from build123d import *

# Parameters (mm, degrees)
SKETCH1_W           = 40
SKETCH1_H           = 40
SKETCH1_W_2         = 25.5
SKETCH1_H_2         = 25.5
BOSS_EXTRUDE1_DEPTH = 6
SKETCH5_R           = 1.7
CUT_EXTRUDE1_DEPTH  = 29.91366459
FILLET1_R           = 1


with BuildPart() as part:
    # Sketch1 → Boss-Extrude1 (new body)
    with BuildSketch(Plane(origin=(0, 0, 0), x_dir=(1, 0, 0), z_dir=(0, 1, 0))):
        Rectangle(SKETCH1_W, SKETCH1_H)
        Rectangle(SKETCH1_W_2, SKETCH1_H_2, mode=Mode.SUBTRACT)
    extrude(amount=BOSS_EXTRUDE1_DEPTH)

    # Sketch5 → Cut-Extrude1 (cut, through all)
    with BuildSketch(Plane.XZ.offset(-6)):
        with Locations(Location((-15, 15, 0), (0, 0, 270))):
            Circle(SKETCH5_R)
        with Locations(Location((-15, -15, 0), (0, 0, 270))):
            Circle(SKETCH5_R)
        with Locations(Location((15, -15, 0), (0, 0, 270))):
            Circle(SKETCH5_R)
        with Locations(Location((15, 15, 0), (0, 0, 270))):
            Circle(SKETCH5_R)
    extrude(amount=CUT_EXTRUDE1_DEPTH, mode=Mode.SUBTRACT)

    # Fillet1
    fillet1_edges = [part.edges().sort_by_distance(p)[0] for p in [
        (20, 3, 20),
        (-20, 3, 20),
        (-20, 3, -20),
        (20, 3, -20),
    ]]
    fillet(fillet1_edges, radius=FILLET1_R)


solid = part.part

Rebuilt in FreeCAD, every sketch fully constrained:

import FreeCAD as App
import Part
import Sketcher

V = App.Vector
Q = App.Units.Quantity


def edges_at(feature, points):
    """Names of the edges that pass closest to the given points."""
    edges = feature.Shape.Edges
    near = lambda p: min(range(len(edges)), key=lambda i: edges[i].distToShape(Part.Vertex(*p))[0])
    return sorted({f"Edge{near(p) + 1}" for p in points})


def add_polygon(sketch, points):
    """Adds a closed chain of lines whose ends are joined by coincident constraints."""
    first, n = sketch.GeometryCount, len(points)
    for a, b in zip(points, points[1:] + points[:1]):
        sketch.addGeometry(Part.LineSegment(App.Vector(*a, 0), App.Vector(*b, 0)), False)
    for i in range(n):
        sketch.addConstraint(Sketcher.Constraint("Coincident", first + i, 2, first + (i + 1) % n, 1))

doc = App.newDocument("Part")
body = doc.addObject("PartDesign::Body", "Body")

# Sketch on XZ plane
sketch1 = body.newObject("Sketcher::SketchObject", "Sketch")
sketch1.AttachmentSupport = (doc.getObject("XZ_Plane"), [""])
sketch1.MapMode = "FlatFace"
add_polygon(sketch1, [(-20, -20), (-20, 20), (20, 20), (20, -20)])  # lines 0-3
add_polygon(sketch1, [(13, 13), (-13, 13), (-13, -13), (13, -13)])  # lines 4-7
sketch1.addConstraint(Sketcher.Constraint("Vertical", 0))
sketch1.addConstraint(Sketcher.Constraint("Horizontal", 1))
sketch1.addConstraint(Sketcher.Constraint("Vertical", 2))
sketch1.addConstraint(Sketcher.Constraint("Horizontal", 3))
sketch1.addConstraint(Sketcher.Constraint("Horizontal", 4))
sketch1.addConstraint(Sketcher.Constraint("Vertical", 5))
sketch1.addConstraint(Sketcher.Constraint("Horizontal", 6))
sketch1.addConstraint(Sketcher.Constraint("Vertical", 7))
sketch1.addConstraint(Sketcher.Constraint("Symmetric", 0, 2, 2, 2, -1, 1))
sketch1.addConstraint(Sketcher.Constraint("Symmetric", 4, 2, 6, 2, -1, 1))
sketch1.addConstraint(Sketcher.Constraint("Equal", 3, 0))
sketch1.addConstraint(Sketcher.Constraint("Equal", 6, 5))
sketch1.addConstraint(Sketcher.Constraint("DistanceX", 1, 1, 1, 2, Q("40 mm")))
sketch1.addConstraint(Sketcher.Constraint("DistanceX", 4, 2, 4, 1, Q("25.5 mm")))
pad1 = body.newObject("PartDesign::Pad", "Pad")
pad1.Profile = sketch1
pad1.Length = 6
pad1.Reversed = True

# Sketch on XZ plane
sketch2 = body.newObject("Sketcher::SketchObject", "Sketch001")
sketch2.AttachmentSupport = (doc.getObject("XZ_Plane"), [""])
sketch2.MapMode = "FlatFace"
sketch2.AttachmentOffset = App.Placement(V(0, 0, -6), App.Rotation())
sketch2.addGeometry(Part.Circle(V(-15, 15, 0), V(0, 0, 1), 1.7), False)
sketch2.addGeometry(Part.Circle(V(-15, -15, 0), V(0, 0, 1), 1.7), False)
sketch2.addGeometry(Part.Circle(V(15, -15, 0), V(0, 0, 1), 1.7), False)
sketch2.addGeometry(Part.Circle(V(15, 15, 0), V(0, 0, 1), 1.7), False)
sketch2.addConstraint(Sketcher.Constraint("Equal", 0, 1))
sketch2.addConstraint(Sketcher.Constraint("Equal", 1, 2))
sketch2.addConstraint(Sketcher.Constraint("Equal", 2, 3))
sketch2.addConstraint(Sketcher.Constraint("Symmetric", 0, 3, 2, 3, -1, 1))
sketch2.addConstraint(Sketcher.Constraint("Symmetric", 1, 3, 3, 3, -1, 1))
sketch2.addConstraint(Sketcher.Constraint("Symmetric", 1, 3, 2, 3, -2))
sketch2.addConstraint(Sketcher.Constraint("Diameter", 0, Q("3.4 mm")))
sketch2.addConstraint(Sketcher.Constraint("DistanceX", 0, 3, -1, 1, Q("15 mm")))
sketch2.addConstraint(Sketcher.Constraint("DistanceY", -1, 1, 0, 3, Q("15 mm")))
pocket1 = body.newObject("PartDesign::Pocket", "Pocket")
pocket1.Profile = sketch2
pocket1.Type = "ThroughAll"
pocket1.Reversed = True
doc.recompute()

fillet = body.newObject("PartDesign::Fillet", "Fillet")
fillet.Base = (pocket1, edges_at(pocket1, [
    (20, 3, 20),
    (-20, 3, 20),
    (-20, 3, -20),
    (20, 3, -20),
]))
fillet.Radius = 1

doc.recompute()
